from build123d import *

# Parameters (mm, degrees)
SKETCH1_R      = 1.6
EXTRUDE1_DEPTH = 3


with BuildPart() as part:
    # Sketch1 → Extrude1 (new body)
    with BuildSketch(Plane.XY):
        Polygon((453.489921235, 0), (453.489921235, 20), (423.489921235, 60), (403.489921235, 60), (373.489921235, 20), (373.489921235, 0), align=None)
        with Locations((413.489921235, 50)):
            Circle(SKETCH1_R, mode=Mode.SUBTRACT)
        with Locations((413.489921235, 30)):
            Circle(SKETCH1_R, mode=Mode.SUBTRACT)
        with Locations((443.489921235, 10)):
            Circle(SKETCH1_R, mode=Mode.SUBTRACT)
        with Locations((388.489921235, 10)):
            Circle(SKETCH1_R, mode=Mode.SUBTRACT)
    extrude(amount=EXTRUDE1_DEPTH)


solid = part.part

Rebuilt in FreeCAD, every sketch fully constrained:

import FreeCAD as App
import Part
import Sketcher
from FreeCAD import Vector
Q = App.Units.Quantity

doc = App.newDocument("Part")
body = doc.addObject("PartDesign::Body", "Body")

sketch1 = body.newObject("Sketcher::SketchObject", "Sketch")
sketch1.AttachmentSupport = (doc.getObject("XY_Plane"), [""])
sketch1.MapMode = "FlatFace"
sketch1.addGeometry([
    Part.LineSegment(Vector(453.5, 0, 0), Vector(453.5, 20, 0)),
    Part.LineSegment(Vector(453.5, 20, 0), Vector(423.5, 60, 0)),
    Part.LineSegment(Vector(423.5, 60, 0), Vector(403.5, 60, 0)),
    Part.LineSegment(Vector(403.5, 60, 0), Vector(373.5, 20, 0)),
    Part.LineSegment(Vector(373.5, 20, 0), Vector(373.5, 0, 0)),
    Part.LineSegment(Vector(373.5, 0, 0), Vector(453.5, 0, 0)),
    Part.Circle(Vector(388.5, 10, 0), Vector(0, 0, 1), 1.6),
    Part.Circle(Vector(443.5, 10, 0), Vector(0, 0, 1), 1.6),
    Part.Circle(Vector(413.5, 30, 0), Vector(0, 0, 1), 1.6),
    Part.Circle(Vector(413.5, 50, 0), Vector(0, 0, 1), 1.6),
], False)
sketch1.addConstraint([
    Sketcher.Constraint("Coincident", 0, 2, 1, 1),
    Sketcher.Constraint("Coincident", 1, 2, 2, 1),
    Sketcher.Constraint("Coincident", 2, 2, 3, 1),
    Sketcher.Constraint("Coincident", 3, 2, 4, 1),
    Sketcher.Constraint("Coincident", 4, 2, 5, 1),
    Sketcher.Constraint("Coincident", 5, 2, 0, 1),
    Sketcher.Constraint("Vertical", 0),
    Sketcher.Constraint("Horizontal", 2),
    Sketcher.Constraint("Vertical", 4),
    Sketcher.Constraint("Horizontal", 5),
    Sketcher.Constraint("Equal", 6, 7),
    Sketcher.Constraint("Equal", 7, 8),
    Sketcher.Constraint("Equal", 8, 9),
    Sketcher.Constraint("PointOnObject", 4, 2, -1),
    Sketcher.Constraint("Horizontal", 6, 3, 7, 3),
    Sketcher.Constraint("Horizontal", 0, 2, 3, 2),
    Sketcher.Constraint("Vertical", 8, 3, 9, 3),
    Sketcher.Constraint("Equal", 2, 0),
    Sketcher.Constraint("Equal", 1, 3),
    Sketcher.Constraint("Diameter", 6, Q("3.2 mm")),
    Sketcher.Constraint("DistanceX", 2, 2, 2, 1, Q("20 mm")),
    Sketcher.Constraint("DistanceX", 5, 1, 5, 2, Q("80 mm")),
    Sketcher.Constraint("Distance", 1, Q("50 mm")),
    Sketcher.Constraint("DistanceY", -1, 1, 6, 3, Q("10 mm")),
    Sketcher.Constraint("DistanceY", -1, 1, 8, 3, Q("30 mm")),
    Sketcher.Constraint("DistanceY", -1, 1, 9, 3, Q("50 mm")),
    Sketcher.Constraint("DistanceX", 6, 3, 7, 3, Q("55 mm")),
    Sketcher.Constraint("DistanceX", 6, 3, 8, 3, Q("25 mm")),
    Sketcher.Constraint("DistanceX", 7, 3, 0, 2, Q("10 mm")),
    Sketcher.Constraint("DistanceX", -1, 1, 6, 3, Q("388.489921 mm")),
])
pad1 = body.newObject("PartDesign::Pad", "Pad")
pad1.Profile = sketch1
pad1.Length = 3

doc.recompute()
